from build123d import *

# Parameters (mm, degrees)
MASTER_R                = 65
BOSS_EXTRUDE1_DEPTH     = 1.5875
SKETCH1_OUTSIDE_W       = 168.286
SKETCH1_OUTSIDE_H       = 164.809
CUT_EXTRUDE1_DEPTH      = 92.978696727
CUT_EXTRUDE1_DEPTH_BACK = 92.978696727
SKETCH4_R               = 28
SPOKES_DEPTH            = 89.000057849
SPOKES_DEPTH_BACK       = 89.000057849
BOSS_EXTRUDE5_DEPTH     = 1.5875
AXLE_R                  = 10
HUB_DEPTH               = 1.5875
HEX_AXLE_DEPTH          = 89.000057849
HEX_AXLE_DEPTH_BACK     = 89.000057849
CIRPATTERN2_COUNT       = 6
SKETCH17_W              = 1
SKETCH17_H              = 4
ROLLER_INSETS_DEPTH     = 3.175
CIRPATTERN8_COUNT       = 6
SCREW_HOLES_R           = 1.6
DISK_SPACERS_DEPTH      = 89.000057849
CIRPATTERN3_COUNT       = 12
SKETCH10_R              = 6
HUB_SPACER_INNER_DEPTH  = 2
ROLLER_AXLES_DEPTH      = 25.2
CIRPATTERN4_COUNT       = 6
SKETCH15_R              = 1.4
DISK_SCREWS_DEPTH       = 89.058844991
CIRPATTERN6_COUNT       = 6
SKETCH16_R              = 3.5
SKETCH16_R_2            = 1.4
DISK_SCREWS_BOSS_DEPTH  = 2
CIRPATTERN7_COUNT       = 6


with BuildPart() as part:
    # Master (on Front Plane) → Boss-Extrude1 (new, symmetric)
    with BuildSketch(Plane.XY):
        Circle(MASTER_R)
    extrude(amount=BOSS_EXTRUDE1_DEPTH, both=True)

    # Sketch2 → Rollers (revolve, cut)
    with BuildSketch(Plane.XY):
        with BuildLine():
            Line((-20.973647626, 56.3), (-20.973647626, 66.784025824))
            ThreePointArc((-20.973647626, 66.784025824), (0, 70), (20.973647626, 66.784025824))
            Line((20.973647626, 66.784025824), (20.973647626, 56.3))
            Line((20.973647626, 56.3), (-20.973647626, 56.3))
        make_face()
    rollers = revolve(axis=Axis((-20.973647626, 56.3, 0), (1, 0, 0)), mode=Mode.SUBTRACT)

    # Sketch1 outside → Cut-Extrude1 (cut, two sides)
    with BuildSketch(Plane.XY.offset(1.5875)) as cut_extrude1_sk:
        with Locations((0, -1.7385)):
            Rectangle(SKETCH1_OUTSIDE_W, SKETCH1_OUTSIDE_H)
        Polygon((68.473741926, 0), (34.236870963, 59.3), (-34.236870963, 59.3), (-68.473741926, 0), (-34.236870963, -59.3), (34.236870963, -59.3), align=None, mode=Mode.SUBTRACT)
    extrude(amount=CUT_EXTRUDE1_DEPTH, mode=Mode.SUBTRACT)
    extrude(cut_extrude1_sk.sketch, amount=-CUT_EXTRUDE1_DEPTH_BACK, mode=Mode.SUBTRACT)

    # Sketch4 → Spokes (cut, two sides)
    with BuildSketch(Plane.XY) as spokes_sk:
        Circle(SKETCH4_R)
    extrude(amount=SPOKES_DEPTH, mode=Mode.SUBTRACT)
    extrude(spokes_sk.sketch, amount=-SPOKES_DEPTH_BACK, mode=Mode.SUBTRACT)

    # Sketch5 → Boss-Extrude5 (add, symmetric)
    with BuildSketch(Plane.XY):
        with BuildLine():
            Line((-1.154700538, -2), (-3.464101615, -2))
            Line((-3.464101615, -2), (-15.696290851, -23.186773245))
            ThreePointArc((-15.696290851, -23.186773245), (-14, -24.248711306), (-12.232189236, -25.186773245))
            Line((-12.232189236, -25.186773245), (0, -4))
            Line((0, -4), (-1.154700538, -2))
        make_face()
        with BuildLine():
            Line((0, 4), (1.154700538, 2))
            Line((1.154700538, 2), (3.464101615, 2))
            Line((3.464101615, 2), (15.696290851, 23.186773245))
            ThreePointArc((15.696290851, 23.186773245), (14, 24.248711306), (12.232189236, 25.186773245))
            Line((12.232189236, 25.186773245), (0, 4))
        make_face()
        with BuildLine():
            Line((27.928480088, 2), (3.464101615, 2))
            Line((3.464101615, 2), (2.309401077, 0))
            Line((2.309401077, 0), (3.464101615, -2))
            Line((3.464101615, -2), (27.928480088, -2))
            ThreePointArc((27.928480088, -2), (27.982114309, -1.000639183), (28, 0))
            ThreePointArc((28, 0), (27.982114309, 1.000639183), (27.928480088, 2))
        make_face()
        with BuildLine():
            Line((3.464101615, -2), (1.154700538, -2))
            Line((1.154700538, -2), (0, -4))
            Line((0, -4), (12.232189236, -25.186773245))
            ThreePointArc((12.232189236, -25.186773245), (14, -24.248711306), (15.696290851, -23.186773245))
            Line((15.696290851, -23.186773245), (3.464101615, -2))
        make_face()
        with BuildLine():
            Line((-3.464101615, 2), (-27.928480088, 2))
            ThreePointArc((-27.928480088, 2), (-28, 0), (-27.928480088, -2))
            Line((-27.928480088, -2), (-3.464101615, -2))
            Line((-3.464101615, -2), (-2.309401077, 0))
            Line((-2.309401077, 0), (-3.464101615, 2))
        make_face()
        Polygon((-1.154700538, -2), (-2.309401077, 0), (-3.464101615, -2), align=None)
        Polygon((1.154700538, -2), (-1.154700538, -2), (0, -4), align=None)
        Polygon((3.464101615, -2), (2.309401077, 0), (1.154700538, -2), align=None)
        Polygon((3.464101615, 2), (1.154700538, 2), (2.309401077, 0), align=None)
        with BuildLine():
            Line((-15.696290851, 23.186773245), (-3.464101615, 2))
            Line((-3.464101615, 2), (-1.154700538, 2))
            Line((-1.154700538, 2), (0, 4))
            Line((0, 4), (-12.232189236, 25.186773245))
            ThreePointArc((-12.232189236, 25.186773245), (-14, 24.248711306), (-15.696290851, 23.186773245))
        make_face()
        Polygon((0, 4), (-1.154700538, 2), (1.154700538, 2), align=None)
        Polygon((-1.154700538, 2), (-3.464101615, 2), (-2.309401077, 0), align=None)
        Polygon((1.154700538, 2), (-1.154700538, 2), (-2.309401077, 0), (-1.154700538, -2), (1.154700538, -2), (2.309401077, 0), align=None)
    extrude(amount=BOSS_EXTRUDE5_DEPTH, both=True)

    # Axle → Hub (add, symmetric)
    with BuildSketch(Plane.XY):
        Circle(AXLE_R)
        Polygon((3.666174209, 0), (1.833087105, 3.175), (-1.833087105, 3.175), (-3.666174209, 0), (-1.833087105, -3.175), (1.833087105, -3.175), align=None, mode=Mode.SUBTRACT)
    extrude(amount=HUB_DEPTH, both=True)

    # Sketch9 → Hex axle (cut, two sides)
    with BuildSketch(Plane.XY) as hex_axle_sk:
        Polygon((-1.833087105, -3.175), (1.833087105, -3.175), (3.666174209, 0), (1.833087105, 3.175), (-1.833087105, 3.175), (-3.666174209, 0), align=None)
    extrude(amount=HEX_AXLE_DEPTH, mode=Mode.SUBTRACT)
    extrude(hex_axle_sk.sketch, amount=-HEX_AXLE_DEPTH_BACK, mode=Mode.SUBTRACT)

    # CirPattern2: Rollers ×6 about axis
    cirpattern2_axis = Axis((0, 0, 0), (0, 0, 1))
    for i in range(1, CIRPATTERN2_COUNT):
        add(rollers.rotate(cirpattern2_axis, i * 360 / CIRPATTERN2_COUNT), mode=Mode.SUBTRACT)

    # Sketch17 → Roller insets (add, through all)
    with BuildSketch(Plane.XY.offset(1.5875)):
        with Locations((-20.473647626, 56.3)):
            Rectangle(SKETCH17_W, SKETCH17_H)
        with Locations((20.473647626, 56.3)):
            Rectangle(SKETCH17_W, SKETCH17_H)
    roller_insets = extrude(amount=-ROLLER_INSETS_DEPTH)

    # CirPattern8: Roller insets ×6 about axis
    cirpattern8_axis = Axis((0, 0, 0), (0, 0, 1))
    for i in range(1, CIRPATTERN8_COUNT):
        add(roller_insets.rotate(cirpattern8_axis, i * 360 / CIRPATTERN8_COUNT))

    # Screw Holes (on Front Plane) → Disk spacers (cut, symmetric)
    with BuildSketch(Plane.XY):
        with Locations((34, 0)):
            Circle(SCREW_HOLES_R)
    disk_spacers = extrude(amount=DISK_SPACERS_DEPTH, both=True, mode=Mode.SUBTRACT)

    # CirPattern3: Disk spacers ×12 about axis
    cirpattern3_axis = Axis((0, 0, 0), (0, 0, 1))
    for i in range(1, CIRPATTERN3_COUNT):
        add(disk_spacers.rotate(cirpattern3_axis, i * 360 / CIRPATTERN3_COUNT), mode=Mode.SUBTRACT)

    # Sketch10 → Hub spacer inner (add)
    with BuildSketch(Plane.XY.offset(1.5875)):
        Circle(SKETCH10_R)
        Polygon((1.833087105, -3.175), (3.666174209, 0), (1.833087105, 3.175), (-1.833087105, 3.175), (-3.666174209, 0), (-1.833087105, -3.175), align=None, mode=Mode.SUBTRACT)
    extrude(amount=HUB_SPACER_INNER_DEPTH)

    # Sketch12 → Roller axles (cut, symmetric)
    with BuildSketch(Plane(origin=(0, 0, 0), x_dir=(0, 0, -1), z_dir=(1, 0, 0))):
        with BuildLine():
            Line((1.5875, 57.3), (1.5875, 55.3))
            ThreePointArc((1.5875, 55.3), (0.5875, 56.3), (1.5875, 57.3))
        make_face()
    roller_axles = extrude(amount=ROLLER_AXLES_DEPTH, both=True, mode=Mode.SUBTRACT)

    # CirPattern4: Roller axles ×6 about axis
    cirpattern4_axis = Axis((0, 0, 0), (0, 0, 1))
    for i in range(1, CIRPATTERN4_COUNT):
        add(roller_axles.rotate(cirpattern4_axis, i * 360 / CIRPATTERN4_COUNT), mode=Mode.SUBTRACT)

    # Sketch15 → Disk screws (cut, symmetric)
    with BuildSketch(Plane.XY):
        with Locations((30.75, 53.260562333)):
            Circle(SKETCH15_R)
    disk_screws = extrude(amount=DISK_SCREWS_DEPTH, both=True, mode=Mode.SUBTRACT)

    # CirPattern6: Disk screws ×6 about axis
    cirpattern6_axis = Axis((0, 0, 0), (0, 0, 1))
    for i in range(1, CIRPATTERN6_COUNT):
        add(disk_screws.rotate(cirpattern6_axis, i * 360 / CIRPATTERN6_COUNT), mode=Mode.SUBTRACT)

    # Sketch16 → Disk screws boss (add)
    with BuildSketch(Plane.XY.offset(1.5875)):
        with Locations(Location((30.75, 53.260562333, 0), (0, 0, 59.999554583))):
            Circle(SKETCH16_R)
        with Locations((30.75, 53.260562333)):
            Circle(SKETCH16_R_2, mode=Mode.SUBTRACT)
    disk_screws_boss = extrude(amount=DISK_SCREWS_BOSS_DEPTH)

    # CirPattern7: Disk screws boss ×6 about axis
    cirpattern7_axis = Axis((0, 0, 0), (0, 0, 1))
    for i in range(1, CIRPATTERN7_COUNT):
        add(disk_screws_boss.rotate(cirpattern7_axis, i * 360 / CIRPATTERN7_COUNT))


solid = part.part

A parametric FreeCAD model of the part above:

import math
import FreeCAD as App
import Part
import Sketcher
Q = App.Units.Quantity

doc = App.newDocument("Part")
body = doc.addObject("PartDesign::Body", "Body")

# Sketch on XY plane
sketch1 = doc.addObject("Sketcher::SketchObject", "Sketch")
body.addObject(sketch1)
sketch1.AttachmentSupport = (doc.XY_Plane, [""])
sketch1.MapMode = "FlatFace"
sketch1.addGeometry(Part.Circle(App.Vector(0, 0, 0), App.Vector(0, 0, 1), 65), False)
sketch1.addConstraint(Sketcher.Constraint("Coincident", 0, 3, -1, 1))
sketch1.addConstraint(Sketcher.Constraint("Diameter", 0, Q("130 mm")))
pad1 = doc.addObject("PartDesign::Pad", "Pad")
body.addObject(pad1)
pad1.Profile = sketch1
pad1.Length = 3.175
pad1.Midplane = True

# Sketch on XY plane
sketch2 = doc.addObject("Sketcher::SketchObject", "Sketch001")
body.addObject(sketch2)
sketch2.AttachmentSupport = (doc.XY_Plane, [""])
sketch2.MapMode = "FlatFace"
sketch2.addGeometry(Part.LineSegment(App.Vector(-20.973648, 66.784026, 0), App.Vector(-20.973648, 56.3, 0)), False)
sketch2.addGeometry(Part.LineSegment(App.Vector(-20.973648, 56.3, 0), App.Vector(20.973648, 56.3, 0)), False)
sketch2.addGeometry(Part.LineSegment(App.Vector(20.973648, 56.3, 0), App.Vector(20.973648, 66.784026, 0)), False)
sketch2.addGeometry(Part.ArcOfCircle(Part.Circle(App.Vector(0, 0, 0), App.Vector(0, 0, 1), 70), math.radians(72.565007), math.radians(107.434993)), False)
sketch2.addGeometry(Part.LineSegment(App.Vector(-20.973648, 56.3, 0), App.Vector(20.973648, 56.3, 0)), True)  # axis
sketch2.addConstraint(Sketcher.Constraint("Coincident", 0, 2, 1, 1))
sketch2.addConstraint(Sketcher.Constraint("Coincident", 1, 2, 2, 1))
sketch2.addConstraint(Sketcher.Constraint("Coincident", 2, 2, 3, 1))
sketch2.addConstraint(Sketcher.Constraint("Coincident", 3, 2, 0, 1))
sketch2.addConstraint(Sketcher.Constraint("Vertical", 0))
sketch2.addConstraint(Sketcher.Constraint("Horizontal", 1))
sketch2.addConstraint(Sketcher.Constraint("Vertical", 2))
sketch2.addConstraint(Sketcher.Constraint("Horizontal", 4))
sketch2.addConstraint(Sketcher.Constraint("Coincident", 3, 3, -1, 1))
sketch2.addConstraint(Sketcher.Constraint("Coincident", 4, 1, 0, 2))
sketch2.addConstraint(Sketcher.Constraint("Horizontal", 2, 2, 3, 2))
sketch2.addConstraint(Sketcher.Constraint("Vertical", 2, 2, 4, 2))
sketch2.addConstraint(Sketcher.Constraint("Radius", 3, Q("70 mm")))
sketch2.addConstraint(Sketcher.Constraint("DistanceY", -1, 1, 0, 2, Q("56.3 mm")))
sketch2.addConstraint(Sketcher.Constraint("DistanceX", 1, 1, 1, 2, Q("41.947295 mm")))
groove = doc.addObject("PartDesign::Groove", "Groove")
body.addObject(groove)
groove.Profile = sketch2
groove.ReferenceAxis = (sketch2, ["Axis0"])
groove.Angle = 360

# Sketch on XY plane
sketch3 = doc.addObject("Sketcher::SketchObject", "Sketch002")
body.addObject(sketch3)
sketch3.AttachmentSupport = (doc.XY_Plane, [""])
sketch3.MapMode = "FlatFace"
sketch3.AttachmentOffset = App.Placement(App.Vector(0, 0, 1.5875), App.Rotation())
sketch3.addGeometry(Part.LineSegment(App.Vector(-84.143, 80.666, 0), App.Vector(-84.143, -84.143, 0)), False)
sketch3.addGeometry(Part.LineSegment(App.Vector(-84.143, -84.143, 0), App.Vector(84.143, -84.143, 0)), False)
sketch3.addGeometry(Part.LineSegment(App.Vector(84.143, -84.143, 0), App.Vector(84.143, 80.666, 0)), False)
sketch3.addGeometry(Part.LineSegment(App.Vector(84.143, 80.666, 0), App.Vector(-84.143, 80.666, 0)), False)
sketch3.addGeometry(Part.LineSegment(App.Vector(34.236871, 59.3, 0), App.Vector(68.473742, 0, 0)), False)
sketch3.addGeometry(Part.LineSegment(App.Vector(68.473742, 0, 0), App.Vector(34.236871, -59.3, 0)), False)
sketch3.addGeometry(Part.LineSegment(App.Vector(34.236871, -59.3, 0), App.Vector(-34.236871, -59.3, 0)), False)
sketch3.addGeometry(Part.LineSegment(App.Vector(-34.236871, -59.3, 0), App.Vector(-68.473742, 0, 0)), False)
sketch3.addGeometry(Part.LineSegment(App.Vector(-68.473742, 0, 0), App.Vector(-34.236871, 59.3, 0)), False)
sketch3.addGeometry(Part.LineSegment(App.Vector(-34.236871, 59.3, 0), App.Vector(34.236871, 59.3, 0)), False)
sketch3.addConstraint(Sketcher.Constraint("Coincident", 0, 2, 1, 1))
sketch3.addConstraint(Sketcher.Constraint("Coincident", 1, 2, 2, 1))
sketch3.addConstraint(Sketcher.Constraint("Coincident", 2, 2, 3, 1))
sketch3.addConstraint(Sketcher.Constraint("Coincident", 3, 2, 0, 1))
sketch3.addConstraint(Sketcher.Constraint("Coincident", 4, 2, 5, 1))
sketch3.addConstraint(Sketcher.Constraint("Coincident", 5, 2, 6, 1))
sketch3.addConstraint(Sketcher.Constraint("Coincident", 6, 2, 7, 1))
sketch3.addConstraint(Sketcher.Constraint("Coincident", 7, 2, 8, 1))
sketch3.addConstraint(Sketcher.Constraint("Coincident", 8, 2, 9, 1))
sketch3.addConstraint(Sketcher.Constraint("Coincident", 9, 2, 4, 1))
sketch3.addConstraint(Sketcher.Constraint("Vertical", 0))
sketch3.addConstraint(Sketcher.Constraint("Horizontal", 1))
sketch3.addConstraint(Sketcher.Constraint("Vertical", 2))
sketch3.addConstraint(Sketcher.Constraint("Horizontal", 3))
sketch3.addConstraint(Sketcher.Constraint("Horizontal", 6))
sketch3.addConstraint(Sketcher.Constraint("Horizontal", 9))
sketch3.addConstraint(Sketcher.Constraint("Symmetric", 4, 2, 7, 2, -1, 1))
sketch3.addConstraint(Sketcher.Constraint("Symmetric", 5, 2, 8, 2, -1, 1))
sketch3.addConstraint(Sketcher.Constraint("PointOnObject", 4, 2, -1))
sketch3.addConstraint(Sketcher.Constraint("Parallel", 4, 7))
sketch3.addConstraint(Sketcher.Constraint("Vertical", 6, 2, 8, 2))
sketch3.addConstraint(Sketcher.Constraint("Angle", 4, Q("-60 deg")))
sketch3.addConstraint(Sketcher.Constraint("DistanceY", 5, 2, -1, 1, Q("59.3 mm")))
sketch3.addConstraint(Sketcher.Constraint("DistanceX", 1, 1, 1, 2, Q("168.286 mm")))
sketch3.addConstraint(Sketcher.Constraint("DistanceY", 0, 2, 0, 1, Q("164.809 mm")))
sketch3.addConstraint(Sketcher.Constraint("DistanceX", 0, 2, -1, 1, Q("84.143 mm")))
sketch3.addConstraint(Sketcher.Constraint("DistanceY", 0, 2, -1, 1, Q("84.143 mm")))
sketch3.addConstraint(Sketcher.Constraint("DistanceX", 6, 2, 6, 1, Q("68.473742 mm")))
pocket1 = doc.addObject("PartDesign::Pocket", "Pocket")
body.addObject(pocket1)
pocket1.Profile = sketch3
pocket1.Type = "ThroughAll"
pocket1.Midplane = True

# Sketch on XY plane
sketch4 = doc.addObject("Sketcher::SketchObject", "Sketch003")
body.addObject(sketch4)
sketch4.AttachmentSupport = (doc.XY_Plane, [""])
sketch4.MapMode = "FlatFace"
sketch4.addGeometry(Part.Circle(App.Vector(0, 0, 0), App.Vector(0, 0, 1), 28), False)
sketch4.addConstraint(Sketcher.Constraint("Coincident", 0, 3, -1, 1))
sketch4.addConstraint(Sketcher.Constraint("Diameter", 0, Q("56 mm")))
pocket2 = doc.addObject("PartDesign::Pocket", "Pocket001")
body.addObject(pocket2)
pocket2.Profile = sketch4
pocket2.Type = "ThroughAll"
pocket2.Midplane = True

# Sketch on XY plane
sketch5 = doc.addObject("Sketcher::SketchObject", "Sketch004")
body.addObject(sketch5)
sketch5.AttachmentSupport = (doc.XY_Plane, [""])
sketch5.MapMode = "FlatFace"
sketch5.addGeometry(Part.LineSegment(App.Vector(-15.696291, 23.186773, 0), App.Vector(-3.464102, 2, 0)), False)
sketch5.addGeometry(Part.LineSegment(App.Vector(-3.464102, 2, 0), App.Vector(-27.92848, 2, 0)), False)
sketch5.addGeometry(Part.ArcOfCircle(Part.Circle(App.Vector(0, 0, 0), App.Vector(0, 0, 1), 28), math.radians(175.903956), math.radians(184.096044)), False)
sketch5.addGeometry(Part.LineSegment(App.Vector(-27.92848, -2, 0), App.Vector(-3.464102, -2, 0)), False)
sketch5.addGeometry(Part.LineSegment(App.Vector(-3.464102, -2, 0), App.Vector(-15.696291, -23.186773, 0)), False)
sketch5.addGeometry(Part.ArcOfCircle(Part.Circle(App.Vector(0, 0, 0), App.Vector(0, 0, 1), 28), math.radians(-124.096044), math.radians(-115.903956)), False)
sketch5.addGeometry(Part.LineSegment(App.Vector(-12.232189, -25.186773, 0), App.Vector(0, -4, 0)), False)
sketch5.addGeometry(Part.LineSegment(App.Vector(0, -4, 0), App.Vector(12.232189, -25.186773, 0)), False)
sketch5.addGeometry(Part.ArcOfCircle(Part.Circle(App.Vector(0, 0, 0), App.Vector(0, 0, 1), 28), math.radians(-64.096044), math.radians(-55.903956)), False)
sketch5.addGeometry(Part.LineSegment(App.Vector(15.696291, -23.186773, 0), App.Vector(3.464102, -2, 0)), False)
sketch5.addGeometry(Part.LineSegment(App.Vector(3.464102, -2, 0), App.Vector(27.92848, -2, 0)), False)
sketch5.addGeometry(Part.ArcOfCircle(Part.Circle(App.Vector(-0.000001, 0, 0), App.Vector(0, 0, 1), 28.000001), math.radians(-4.096044), math.radians(0)), False)
sketch5.addGeometry(Part.ArcOfCircle(Part.Circle(App.Vector(-0.000001, 0, 0), App.Vector(0, 0, 1), 28.000001), math.radians(0), math.radians(4.096044)), False)
sketch5.addGeometry(Part.LineSegment(App.Vector(27.92848, 2, 0), App.Vector(3.464102, 2, 0)), False)
sketch5.addGeometry(Part.LineSegment(App.Vector(3.464102, 2, 0), App.Vector(15.696291, 23.186773, 0)), False)
sketch5.addGeometry(Part.ArcOfCircle(Part.Circle(App.Vector(0, 0, 0), App.Vector(0, 0, 1), 28), math.radians(55.903956), math.radians(64.096044)), False)
sketch5.addGeometry(Part.LineSegment(App.Vector(12.232189, 25.186773, 0), App.Vector(0, 4, 0)), False)
sketch5.addGeometry(Part.LineSegment(App.Vector(0, 4, 0), App.Vector(-12.232189, 25.186773, 0)), False)
sketch5.addGeometry(Part.ArcOfCircle(Part.Circle(App.Vector(0, 0, 0), App.Vector(0, 0, 1), 28), math.radians(115.903956), math.radians(124.096044)), False)
sketch5.addConstraint(Sketcher.Constraint("Coincident", 0, 2, 1, 1))
sketch5.addConstraint(Sketcher.Constraint("Coincident", 1, 2, 2, 1))
sketch5.addConstraint(Sketcher.Constraint("Coincident", 2, 2, 3, 1))
sketch5.addConstraint(Sketcher.Constraint("Coincident", 3, 2, 4, 1))
sketch5.addConstraint(Sketcher.Constraint("Coincident", 4, 2, 5, 1))
sketch5.addConstraint(Sketcher.Constraint("Coincident", 5, 2, 6, 1))
sketch5.addConstraint(Sketcher.Constraint("Coincident", 6, 2, 7, 1))
sketch5.addConstraint(Sketcher.Constraint("Coincident", 7, 2, 8, 1))
sketch5.addConstraint(Sketcher.Constraint("Coincident", 8, 2, 9, 1))
sketch5.addConstraint(Sketcher.Constraint("Coincident", 9, 2, 10, 1))
sketch5.addConstraint(Sketcher.Constraint("Coincident", 10, 2, 11, 1))
sketch5.addConstraint(Sketcher.Constraint("Tangent", 11, 2, 12, 1))
sketch5.addConstraint(Sketcher.Constraint("Coincident", 12, 2, 13, 1))
sketch5.addConstraint(Sketcher.Constraint("Coincident", 13, 2, 14, 1))
sketch5.addConstraint(Sketcher.Constraint("Coincident", 14, 2, 15, 1))
sketch5.addConstraint(Sketcher.Constraint("Coincident", 15, 2, 16, 1))
sketch5.addConstraint(Sketcher.Constraint("Coincident", 16, 2, 17, 1))
sketch5.addConstraint(Sketcher.Constraint("Coincident", 17, 2, 18, 1))
sketch5.addConstraint(Sketcher.Constraint("Coincident", 18, 2, 0, 1))
sketch5.addConstraint(Sketcher.Constraint("Horizontal", 1))
sketch5.addConstraint(Sketcher.Constraint("Horizontal", 3))
sketch5.addConstraint(Sketcher.Constraint("Horizontal", 10))
sketch5.addConstraint(Sketcher.Constraint("Horizontal", 13))
sketch5.addConstraint(Sketcher.Constraint("Coincident", 2, 3, -1, 1))
sketch5.addConstraint(Sketcher.Constraint("Coincident", 5, 3, -1, 1))
sketch5.addConstraint(Sketcher.Constraint("Coincident", 8, 3, -1, 1))
sketch5.addConstraint(Sketcher.Constraint("Coincident", 11, 3, -1, 1))
sketch5.addConstraint(Sketcher.Constraint("Coincident", 15, 3, -1, 1))
sketch5.addConstraint(Sketcher.Constraint("Coincident", 18, 3, -1, 1))
sketch5.addConstraint(Sketcher.Constraint("Equal", 2, 5))
sketch5.addConstraint(Sketcher.Constraint("Equal", 5, 8))
sketch5.addConstraint(Sketcher.Constraint("Equal", 8, 11))
sketch5.addConstraint(Sketcher.Constraint("Equal", 11, 12))
sketch5.addConstraint(Sketcher.Constraint("Equal", 12, 15))
sketch5.addConstraint(Sketcher.Constraint("Equal", 15, 18))
sketch5.addConstraint(Sketcher.Constraint("Symmetric", 0, 2, 9, 2, -1, 1))
sketch5.addConstraint(Sketcher.Constraint("Symmetric", 3, 2, 13, 2, -1, 1))
sketch5.addConstraint(Sketcher.Constraint("Symmetric", 6, 2, 16, 2, -1, 1))
sketch5.addConstraint(Sketcher.Constraint("Symmetric", 3, 2, 9, 2, -2))
sketch5.addConstraint(Sketcher.Constraint("PointOnObject", 6, 2, -2))
sketch5.addConstraint(Sketcher.Constraint("PointOnObject", 11, 2, -1))
sketch5.addConstraint(Sketcher.Constraint("Parallel", 4, 6))
sketch5.addConstraint(Sketcher.Constraint("Parallel", 0, 7))
sketch5.addConstraint(Sketcher.Constraint("Parallel", 7, 9))
sketch5.addConstraint(Sketcher.Constraint("Parallel", 6, 14))
sketch5.addConstraint(Sketcher.Constraint("Parallel", 14, 16))
sketch5.addConstraint(Sketcher.Constraint("Parallel", 9, 17))
sketch5.addConstraint(Sketcher.Constraint("Horizontal", 5, 2, 7, 2))
sketch5.addConstraint(Sketcher.Constraint("Equal", 4, 6))
sketch5.addConstraint(Sketcher.Constraint("Radius", 2, Q("28 mm")))
sketch5.addConstraint(Sketcher.Constraint("Angle", 0, Q("-60 deg")))
sketch5.addConstraint(Sketcher.Constraint("DistanceY", -1, 1, 0, 2, Q("2 mm")))
sketch5.addConstraint(Sketcher.Constraint("DistanceY", 6, 2, -1, 1, Q("4 mm")))
pad2 = doc.addObject("PartDesign::Pad", "Pad001")
body.addObject(pad2)
pad2.Profile = sketch5
pad2.Length = 3.175
pad2.Midplane = True

# Sketch on XY plane
sketch6 = doc.addObject("Sketcher::SketchObject", "Sketch005")
body.addObject(sketch6)
sketch6.AttachmentSupport = (doc.XY_Plane, [""])
sketch6.MapMode = "FlatFace"
sketch6.addGeometry(Part.Circle(App.Vector(0, 0, 0), App.Vector(0, 0, 1), 10), False)
sketch6.addGeometry(Part.LineSegment(App.Vector(1.833087, 3.175, 0), App.Vector(3.666174, 0, 0)), False)
sketch6.addGeometry(Part.LineSegment(App.Vector(3.666174, 0, 0), App.Vector(1.833087, -3.175, 0)), False)
sketch6.addGeometry(Part.LineSegment(App.Vector(1.833087, -3.175, 0), App.Vector(-1.833087, -3.175, 0)), False)
sketch6.addGeometry(Part.LineSegment(App.Vector(-1.833087, -3.175, 0), App.Vector(-3.666174, 0, 0)), False)
sketch6.addGeometry(Part.LineSegment(App.Vector(-3.666174, 0, 0), App.Vector(-1.833087, 3.175, 0)), False)
sketch6.addGeometry(Part.LineSegment(App.Vector(-1.833087, 3.175, 0), App.Vector(1.833087, 3.175, 0)), False)
sketch6.addConstraint(Sketcher.Constraint("Coincident", 1, 2, 2, 1))
sketch6.addConstraint(Sketcher.Constraint("Coincident", 2, 2, 3, 1))
sketch6.addConstraint(Sketcher.Constraint("Coincident", 3, 2, 4, 1))
sketch6.addConstraint(Sketcher.Constraint("Coincident", 4, 2, 5, 1))
sketch6.addConstraint(Sketcher.Constraint("Coincident", 5, 2, 6, 1))
sketch6.addConstraint(Sketcher.Constraint("Coincident", 6, 2, 1, 1))
sketch6.addConstraint(Sketcher.Constraint("Horizontal", 3))
sketch6.addConstraint(Sketcher.Constraint("Horizontal", 6))
sketch6.addConstraint(Sketcher.Constraint("Coincident", 0, 3, -1, 1))
sketch6.addConstraint(Sketcher.Constraint("Symmetric", 1, 2, 4, 2, -1, 1))
sketch6.addConstraint(Sketcher.Constraint("Symmetric", 2, 2, 5, 2, -1, 1))
sketch6.addConstraint(Sketcher.Constraint("PointOnObject", 1, 2, -1))
sketch6.addConstraint(Sketcher.Constraint("Parallel", 1, 4))
sketch6.addConstraint(Sketcher.Constraint("Vertical", 3, 2, 5, 2))
sketch6.addConstraint(Sketcher.Constraint("Diameter", 0, Q("20 mm")))
sketch6.addConstraint(Sketcher.Constraint("Angle", 1, Q("-60 deg")))
sketch6.addConstraint(Sketcher.Constraint("DistanceY", 3, 2, 5, 2, Q("6.35 mm")))
sketch6.addConstraint(Sketcher.Constraint("DistanceX", 3, 2, 3, 1, Q("3.666174 mm")))
pad3 = doc.addObject("PartDesign::Pad", "Pad002")
body.addObject(pad3)
pad3.Profile = sketch6
pad3.Length = 3.175
pad3.Midplane = True

# Sketch on XY plane
sketch7 = doc.addObject("Sketcher::SketchObject", "Sketch006")
body.addObject(sketch7)
sketch7.AttachmentSupport = (doc.XY_Plane, [""])
sketch7.MapMode = "FlatFace"
sketch7.addGeometry(Part.LineSegment(App.Vector(-1.833087, -3.175, 0), App.Vector(1.833087, -3.175, 0)), False)
sketch7.addGeometry(Part.LineSegment(App.Vector(1.833087, -3.175, 0), App.Vector(3.666174, 0, 0)), False)
sketch7.addGeometry(Part.LineSegment(App.Vector(3.666174, 0, 0), App.Vector(1.833087, 3.175, 0)), False)
sketch7.addGeometry(Part.LineSegment(App.Vector(1.833087, 3.175, 0), App.Vector(-1.833087, 3.175, 0)), False)
sketch7.addGeometry(Part.LineSegment(App.Vector(-1.833087, 3.175, 0), App.Vector(-3.666174, 0, 0)), False)
sketch7.addGeometry(Part.LineSegment(App.Vector(-3.666174, 0, 0), App.Vector(-1.833087, -3.175, 0)), False)
sketch7.addConstraint(Sketcher.Constraint("Coincident", 0, 2, 1, 1))
sketch7.addConstraint(Sketcher.Constraint("Coincident", 1, 2, 2, 1))
sketch7.addConstraint(Sketcher.Constraint("Coincident", 2, 2, 3, 1))
sketch7.addConstraint(Sketcher.Constraint("Coincident", 3, 2, 4, 1))
sketch7.addConstraint(Sketcher.Constraint("Coincident", 4, 2, 5, 1))
sketch7.addConstraint(Sketcher.Constraint("Coincident", 5, 2, 0, 1))
sketch7.addConstraint(Sketcher.Constraint("Horizontal", 0))
sketch7.addConstraint(Sketcher.Constraint("Horizontal", 3))
sketch7.addConstraint(Sketcher.Constraint("Symmetric", 0, 2, 3, 2, -1, 1))
sketch7.addConstraint(Sketcher.Constraint("Symmetric", 1, 2, 4, 2, -1, 1))
sketch7.addConstraint(Sketcher.Constraint("PointOnObject", 1, 2, -1))
sketch7.addConstraint(Sketcher.Constraint("Parallel", 2, 5))
sketch7.addConstraint(Sketcher.Constraint("Vertical", 0, 2, 2, 2))
sketch7.addConstraint(Sketcher.Constraint("Angle", 1, Q("60 deg")))
sketch7.addConstraint(Sketcher.Constraint("DistanceY", 0, 2, 2, 2, Q("6.35 mm")))
sketch7.addConstraint(Sketcher.Constraint("DistanceX", 0, 1, 0, 2, Q("3.666174 mm")))
pocket3 = doc.addObject("PartDesign::Pocket", "Pocket002")
body.addObject(pocket3)
pocket3.Profile = sketch7
pocket3.Type = "ThroughAll"
pocket3.Midplane = True
doc.recompute()

polarpattern = doc.addObject("PartDesign::PolarPattern", "PolarPattern")
body.addObject(polarpattern)
polarpattern.Originals = [groove]
polarpattern.Axis = (doc.Z_Axis, [""])
polarpattern.Angle = 360
polarpattern.Occurrences = 6
body.Tip = polarpattern

# Sketch on XY plane
sketch8 = doc.addObject("Sketcher::SketchObject", "Sketch007")
body.addObject(sketch8)
sketch8.AttachmentSupport = (doc.XY_Plane, [""])
sketch8.MapMode = "FlatFace"
sketch8.AttachmentOffset = App.Placement(App.Vector(0, 0, 1.5875), App.Rotation())
sketch8.addGeometry(Part.LineSegment(App.Vector(-20.973648, 58.3, 0), App.Vector(-20.973648, 54.3, 0)), False)
sketch8.addGeometry(Part.LineSegment(App.Vector(-20.973648, 54.3, 0), App.Vector(-19.973648, 54.3, 0)), False)
sketch8.addGeometry(Part.LineSegment(App.Vector(-19.973648, 54.3, 0), App.Vector(-19.973648, 58.3, 0)), False)
sketch8.addGeometry(Part.LineSegment(App.Vector(-19.973648, 58.3, 0), App.Vector(-20.973648, 58.3, 0)), False)
sketch8.addGeometry(Part.LineSegment(App.Vector(19.973648, 58.3, 0), App.Vector(19.973648, 54.3, 0)), False)
sketch8.addGeometry(Part.LineSegment(App.Vector(19.973648, 54.3, 0), App.Vector(20.973648, 54.3, 0)), False)
sketch8.addGeometry(Part.LineSegment(App.Vector(20.973648, 54.3, 0), App.Vector(20.973648, 58.3, 0)), False)
sketch8.addGeometry(Part.LineSegment(App.Vector(20.973648, 58.3, 0), App.Vector(19.973648, 58.3, 0)), False)
sketch8.addConstraint(Sketcher.Constraint("Coincident", 0, 2, 1, 1))
sketch8.addConstraint(Sketcher.Constraint("Coincident", 1, 2, 2, 1))
sketch8.addConstraint(Sketcher.Constraint("Coincident", 2, 2, 3, 1))
sketch8.addConstraint(Sketcher.Constraint("Coincident", 3, 2, 0, 1))
sketch8.addConstraint(Sketcher.Constraint("Coincident", 4, 2, 5, 1))
sketch8.addConstraint(Sketcher.Constraint("Coincident", 5, 2, 6, 1))
sketch8.addConstraint(Sketcher.Constraint("Coincident", 6, 2, 7, 1))
sketch8.addConstraint(Sketcher.Constraint("Coincident", 7, 2, 4, 1))
sketch8.addConstraint(Sketcher.Constraint("Vertical", 0))
sketch8.addConstraint(Sketcher.Constraint("Horizontal", 1))
sketch8.addConstraint(Sketcher.Constraint("Vertical", 2))
sketch8.addConstraint(Sketcher.Constraint("Horizontal", 3))
sketch8.addConstraint(Sketcher.Constraint("Vertical", 4))
sketch8.addConstraint(Sketcher.Constraint("Horizontal", 5))
sketch8.addConstraint(Sketcher.Constraint("Vertical", 6))
sketch8.addConstraint(Sketcher.Constraint("Horizontal", 7))
sketch8.addConstraint(Sketcher.Constraint("Symmetric", 1, 2, 4, 2, -2))
sketch8.addConstraint(Sketcher.Constraint("Symmetric", 3, 2, 6, 2, -2))
sketch8.addConstraint(Sketcher.Constraint("DistanceX", 1, 1, 1, 2, Q("1 mm")))
sketch8.addConstraint(Sketcher.Constraint("DistanceY", 0, 2, 0, 1, Q("4 mm")))
sketch8.addConstraint(Sketcher.Constraint("DistanceY", -1, 1, 0, 2, Q("54.3 mm")))
sketch8.addConstraint(Sketcher.Constraint("DistanceX", 0, 2, -1, 1, Q("20.973648 mm")))
pad4 = doc.addObject("PartDesign::Pad", "Pad003")
body.addObject(pad4)
pad4.Profile = sketch8
pad4.Length = 3.175
pad4.Reversed = True
doc.recompute()

polarpattern2 = doc.addObject("PartDesign::PolarPattern", "PolarPattern001")
body.addObject(polarpattern2)
polarpattern2.Originals = [pad4]
polarpattern2.Axis = (doc.Z_Axis, [""])
polarpattern2.Angle = 360
polarpattern2.Occurrences = 6
body.Tip = polarpattern2

# Sketch on XY plane
sketch9 = doc.addObject("Sketcher::SketchObject", "Sketch008")
body.addObject(sketch9)
sketch9.AttachmentSupport = (doc.XY_Plane, [""])
sketch9.MapMode = "FlatFace"
sketch9.addGeometry(Part.Circle(App.Vector(34, 0, 0), App.Vector(0, 0, 1), 1.6), False)
sketch9.addConstraint(Sketcher.Constraint("PointOnObject", 0, 3, -1))
sketch9.addConstraint(Sketcher.Constraint("Diameter", 0, Q("3.2 mm")))
sketch9.addConstraint(Sketcher.Constraint("DistanceX", -1, 1, 0, 3, Q("34 mm")))
pocket4 = doc.addObject("PartDesign::Pocket", "Pocket003")
body.addObject(pocket4)
pocket4.Profile = sketch9
pocket4.Length = 178.000116
pocket4.Midplane = True
doc.recompute()

polarpattern3 = doc.addObject("PartDesign::PolarPattern", "PolarPattern002")
body.addObject(polarpattern3)
polarpattern3.Originals = [pocket4]
polarpattern3.Axis = (doc.Z_Axis, [""])
polarpattern3.Angle = 360
polarpattern3.Occurrences = 12
body.Tip = polarpattern3

# Sketch on XY plane
sketch10 = doc.addObject("Sketcher::SketchObject", "Sketch009")
body.addObject(sketch10)
sketch10.AttachmentSupport = (doc.XY_Plane, [""])
sketch10.MapMode = "FlatFace"
sketch10.AttachmentOffset = App.Placement(App.Vector(0, 0, 1.5875), App.Rotation())
sketch10.addGeometry(Part.Circle(App.Vector(0, 0, 0), App.Vector(0, 0, 1), 6), False)
sketch10.addGeometry(Part.LineSegment(App.Vector(3.666174, 0, 0), App.Vector(1.833087, -3.175, 0)), False)
sketch10.addGeometry(Part.LineSegment(App.Vector(1.833087, -3.175, 0), App.Vector(-1.833087, -3.175, 0)), False)
sketch10.addGeometry(Part.LineSegment(App.Vector(-1.833087, -3.175, 0), App.Vector(-3.666174, 0, 0)), False)
sketch10.addGeometry(Part.LineSegment(App.Vector(-3.666174, 0, 0), App.Vector(-1.833087, 3.175, 0)), False)
sketch10.addGeometry(Part.LineSegment(App.Vector(-1.833087, 3.175, 0), App.Vector(1.833087, 3.175, 0)), False)
sketch10.addGeometry(Part.LineSegment(App.Vector(1.833087, 3.175, 0), App.Vector(3.666174, 0, 0)), False)
sketch10.addConstraint(Sketcher.Constraint("Coincident", 1, 2, 2, 1))
sketch10.addConstraint(Sketcher.Constraint("Coincident", 2, 2, 3, 1))
sketch10.addConstraint(Sketcher.Constraint("Coincident", 3, 2, 4, 1))
sketch10.addConstraint(Sketcher.Constraint("Coincident", 4, 2, 5, 1))
sketch10.addConstraint(Sketcher.Constraint("Coincident", 5, 2, 6, 1))
sketch10.addConstraint(Sketcher.Constraint("Coincident", 6, 2, 1, 1))
sketch10.addConstraint(Sketcher.Constraint("Horizontal", 2))
sketch10.addConstraint(Sketcher.Constraint("Horizontal", 5))
sketch10.addConstraint(Sketcher.Constraint("Coincident", 0, 3, -1, 1))
sketch10.addConstraint(Sketcher.Constraint("Symmetric", 1, 2, 4, 2, -1, 1))
sketch10.addConstraint(Sketcher.Constraint("Symmetric", 3, 2, 6, 2, -1, 1))
sketch10.addConstraint(Sketcher.Constraint("PointOnObject", 3, 2, -1))
sketch10.addConstraint(Sketcher.Constraint("Parallel", 3, 6))
sketch10.addConstraint(Sketcher.Constraint("Vertical", 2, 2, 4, 2))
sketch10.addConstraint(Sketcher.Constraint("Diameter", 0, Q("12 mm")))
sketch10.addConstraint(Sketcher.Constraint("Angle", 1, Q("-120 deg")))
sketch10.addConstraint(Sketcher.Constraint("DistanceY", 2, 2, 4, 2, Q("6.35 mm")))
sketch10.addConstraint(Sketcher.Constraint("DistanceX", 2, 2, 2, 1, Q("3.666174 mm")))
pad5 = doc.addObject("PartDesign::Pad", "Pad004")
body.addObject(pad5)
pad5.Profile = sketch10
pad5.Length = 2

# Sketch on YZ plane
sketch11 = doc.addObject("Sketcher::SketchObject", "Sketch010")
body.addObject(sketch11)
sketch11.AttachmentSupport = (doc.YZ_Plane, [""])
sketch11.MapMode = "FlatFace"
sketch11.addGeometry(Part.LineSegment(App.Vector(55.3, -1.5875, 0), App.Vector(57.3, -1.5875, 0)), False)
sketch11.addGeometry(Part.ArcOfCircle(Part.Circle(App.Vector(56.3, -1.5875, 0), App.Vector(0, 0, 1), 1), math.radians(0), math.radians(180)), False)
sketch11.addConstraint(Sketcher.Constraint("Coincident", 0, 1, 1, 2))
sketch11.addConstraint(Sketcher.Constraint("Coincident", 1, 1, 0, 2))
sketch11.addConstraint(Sketcher.Constraint("Horizontal", 0))
sketch11.addConstraint(Sketcher.Constraint("Horizontal", 1, 3, 0, 1))
sketch11.addConstraint(Sketcher.Constraint("Radius", 1, Q("1 mm")))
sketch11.addConstraint(Sketcher.Constraint("DistanceX", -1, 1, 1, 3, Q("56.3 mm")))
sketch11.addConstraint(Sketcher.Constraint("DistanceY", 1, 3, -1, 1, Q("1.5875 mm")))
pocket5 = doc.addObject("PartDesign::Pocket", "Pocket004")
body.addObject(pocket5)
pocket5.Profile = sketch11
pocket5.Length = 50.4
pocket5.Midplane = True
doc.recompute()

polarpattern4 = doc.addObject("PartDesign::PolarPattern", "PolarPattern003")
body.addObject(polarpattern4)
polarpattern4.Originals = [pocket5]
polarpattern4.Axis = (doc.Z_Axis, [""])
polarpattern4.Angle = 360
polarpattern4.Occurrences = 6
body.Tip = polarpattern4

# Sketch on XY plane
sketch12 = doc.addObject("Sketcher::SketchObject", "Sketch011")
body.addObject(sketch12)
sketch12.AttachmentSupport = (doc.XY_Plane, [""])
sketch12.MapMode = "FlatFace"
sketch12.addGeometry(Part.Circle(App.Vector(30.75, 53.260562, 0), App.Vector(0, 0, 1), 1.4), False)
sketch12.addConstraint(Sketcher.Constraint("Diameter", 0, Q("2.8 mm")))
sketch12.addConstraint(Sketcher.Constraint("DistanceX", -1, 1, 0, 3, Q("30.75 mm")))
sketch12.addConstraint(Sketcher.Constraint("DistanceY", -1, 1, 0, 3, Q("53.260562 mm")))
pocket6 = doc.addObject("PartDesign::Pocket", "Pocket005")
body.addObject(pocket6)
pocket6.Profile = sketch12
pocket6.Length = 178.11769
pocket6.Midplane = True
doc.recompute()

polarpattern5 = doc.addObject("PartDesign::PolarPattern", "PolarPattern004")
body.addObject(polarpattern5)
polarpattern5.Originals = [pocket6]
polarpattern5.Axis = (doc.Z_Axis, [""])
polarpattern5.Angle = 360
polarpattern5.Occurrences = 6
body.Tip = polarpattern5

# Sketch on XY plane
sketch13 = doc.addObject("Sketcher::SketchObject", "Sketch012")
body.addObject(sketch13)
sketch13.AttachmentSupport = (doc.XY_Plane, [""])
sketch13.MapMode = "FlatFace"
sketch13.AttachmentOffset = App.Placement(App.Vector(0, 0, 1.5875), App.Rotation())
sketch13.addGeometry(Part.Circle(App.Vector(30.75, 53.260562, 0), App.Vector(0, 0, 1), 3.5), False)
sketch13.addGeometry(Part.Circle(App.Vector(30.75, 53.260562, 0), App.Vector(0, 0, 1), 1.4), False)
sketch13.addConstraint(Sketcher.Constraint("Coincident", 1, 3, 0, 3))
sketch13.addConstraint(Sketcher.Constraint("Diameter", 0, Q("7 mm")))
sketch13.addConstraint(Sketcher.Constraint("Diameter", 1, Q("2.8 mm")))
sketch13.addConstraint(Sketcher.Constraint("DistanceX", -1, 1, 0, 3, Q("30.75 mm")))
sketch13.addConstraint(Sketcher.Constraint("DistanceY", -1, 1, 0, 3, Q("53.260562 mm")))
pad6 = doc.addObject("PartDesign::Pad", "Pad005")
body.addObject(pad6)
pad6.Profile = sketch13
pad6.Length = 2
doc.recompute()

polarpattern6 = doc.addObject("PartDesign::PolarPattern", "PolarPattern005")
body.addObject(polarpattern6)
polarpattern6.Originals = [pad6]
polarpattern6.Axis = (doc.Z_Axis, [""])
polarpattern6.Angle = 360
polarpattern6.Occurrences = 6
body.Tip = polarpattern6

doc.recompute()
